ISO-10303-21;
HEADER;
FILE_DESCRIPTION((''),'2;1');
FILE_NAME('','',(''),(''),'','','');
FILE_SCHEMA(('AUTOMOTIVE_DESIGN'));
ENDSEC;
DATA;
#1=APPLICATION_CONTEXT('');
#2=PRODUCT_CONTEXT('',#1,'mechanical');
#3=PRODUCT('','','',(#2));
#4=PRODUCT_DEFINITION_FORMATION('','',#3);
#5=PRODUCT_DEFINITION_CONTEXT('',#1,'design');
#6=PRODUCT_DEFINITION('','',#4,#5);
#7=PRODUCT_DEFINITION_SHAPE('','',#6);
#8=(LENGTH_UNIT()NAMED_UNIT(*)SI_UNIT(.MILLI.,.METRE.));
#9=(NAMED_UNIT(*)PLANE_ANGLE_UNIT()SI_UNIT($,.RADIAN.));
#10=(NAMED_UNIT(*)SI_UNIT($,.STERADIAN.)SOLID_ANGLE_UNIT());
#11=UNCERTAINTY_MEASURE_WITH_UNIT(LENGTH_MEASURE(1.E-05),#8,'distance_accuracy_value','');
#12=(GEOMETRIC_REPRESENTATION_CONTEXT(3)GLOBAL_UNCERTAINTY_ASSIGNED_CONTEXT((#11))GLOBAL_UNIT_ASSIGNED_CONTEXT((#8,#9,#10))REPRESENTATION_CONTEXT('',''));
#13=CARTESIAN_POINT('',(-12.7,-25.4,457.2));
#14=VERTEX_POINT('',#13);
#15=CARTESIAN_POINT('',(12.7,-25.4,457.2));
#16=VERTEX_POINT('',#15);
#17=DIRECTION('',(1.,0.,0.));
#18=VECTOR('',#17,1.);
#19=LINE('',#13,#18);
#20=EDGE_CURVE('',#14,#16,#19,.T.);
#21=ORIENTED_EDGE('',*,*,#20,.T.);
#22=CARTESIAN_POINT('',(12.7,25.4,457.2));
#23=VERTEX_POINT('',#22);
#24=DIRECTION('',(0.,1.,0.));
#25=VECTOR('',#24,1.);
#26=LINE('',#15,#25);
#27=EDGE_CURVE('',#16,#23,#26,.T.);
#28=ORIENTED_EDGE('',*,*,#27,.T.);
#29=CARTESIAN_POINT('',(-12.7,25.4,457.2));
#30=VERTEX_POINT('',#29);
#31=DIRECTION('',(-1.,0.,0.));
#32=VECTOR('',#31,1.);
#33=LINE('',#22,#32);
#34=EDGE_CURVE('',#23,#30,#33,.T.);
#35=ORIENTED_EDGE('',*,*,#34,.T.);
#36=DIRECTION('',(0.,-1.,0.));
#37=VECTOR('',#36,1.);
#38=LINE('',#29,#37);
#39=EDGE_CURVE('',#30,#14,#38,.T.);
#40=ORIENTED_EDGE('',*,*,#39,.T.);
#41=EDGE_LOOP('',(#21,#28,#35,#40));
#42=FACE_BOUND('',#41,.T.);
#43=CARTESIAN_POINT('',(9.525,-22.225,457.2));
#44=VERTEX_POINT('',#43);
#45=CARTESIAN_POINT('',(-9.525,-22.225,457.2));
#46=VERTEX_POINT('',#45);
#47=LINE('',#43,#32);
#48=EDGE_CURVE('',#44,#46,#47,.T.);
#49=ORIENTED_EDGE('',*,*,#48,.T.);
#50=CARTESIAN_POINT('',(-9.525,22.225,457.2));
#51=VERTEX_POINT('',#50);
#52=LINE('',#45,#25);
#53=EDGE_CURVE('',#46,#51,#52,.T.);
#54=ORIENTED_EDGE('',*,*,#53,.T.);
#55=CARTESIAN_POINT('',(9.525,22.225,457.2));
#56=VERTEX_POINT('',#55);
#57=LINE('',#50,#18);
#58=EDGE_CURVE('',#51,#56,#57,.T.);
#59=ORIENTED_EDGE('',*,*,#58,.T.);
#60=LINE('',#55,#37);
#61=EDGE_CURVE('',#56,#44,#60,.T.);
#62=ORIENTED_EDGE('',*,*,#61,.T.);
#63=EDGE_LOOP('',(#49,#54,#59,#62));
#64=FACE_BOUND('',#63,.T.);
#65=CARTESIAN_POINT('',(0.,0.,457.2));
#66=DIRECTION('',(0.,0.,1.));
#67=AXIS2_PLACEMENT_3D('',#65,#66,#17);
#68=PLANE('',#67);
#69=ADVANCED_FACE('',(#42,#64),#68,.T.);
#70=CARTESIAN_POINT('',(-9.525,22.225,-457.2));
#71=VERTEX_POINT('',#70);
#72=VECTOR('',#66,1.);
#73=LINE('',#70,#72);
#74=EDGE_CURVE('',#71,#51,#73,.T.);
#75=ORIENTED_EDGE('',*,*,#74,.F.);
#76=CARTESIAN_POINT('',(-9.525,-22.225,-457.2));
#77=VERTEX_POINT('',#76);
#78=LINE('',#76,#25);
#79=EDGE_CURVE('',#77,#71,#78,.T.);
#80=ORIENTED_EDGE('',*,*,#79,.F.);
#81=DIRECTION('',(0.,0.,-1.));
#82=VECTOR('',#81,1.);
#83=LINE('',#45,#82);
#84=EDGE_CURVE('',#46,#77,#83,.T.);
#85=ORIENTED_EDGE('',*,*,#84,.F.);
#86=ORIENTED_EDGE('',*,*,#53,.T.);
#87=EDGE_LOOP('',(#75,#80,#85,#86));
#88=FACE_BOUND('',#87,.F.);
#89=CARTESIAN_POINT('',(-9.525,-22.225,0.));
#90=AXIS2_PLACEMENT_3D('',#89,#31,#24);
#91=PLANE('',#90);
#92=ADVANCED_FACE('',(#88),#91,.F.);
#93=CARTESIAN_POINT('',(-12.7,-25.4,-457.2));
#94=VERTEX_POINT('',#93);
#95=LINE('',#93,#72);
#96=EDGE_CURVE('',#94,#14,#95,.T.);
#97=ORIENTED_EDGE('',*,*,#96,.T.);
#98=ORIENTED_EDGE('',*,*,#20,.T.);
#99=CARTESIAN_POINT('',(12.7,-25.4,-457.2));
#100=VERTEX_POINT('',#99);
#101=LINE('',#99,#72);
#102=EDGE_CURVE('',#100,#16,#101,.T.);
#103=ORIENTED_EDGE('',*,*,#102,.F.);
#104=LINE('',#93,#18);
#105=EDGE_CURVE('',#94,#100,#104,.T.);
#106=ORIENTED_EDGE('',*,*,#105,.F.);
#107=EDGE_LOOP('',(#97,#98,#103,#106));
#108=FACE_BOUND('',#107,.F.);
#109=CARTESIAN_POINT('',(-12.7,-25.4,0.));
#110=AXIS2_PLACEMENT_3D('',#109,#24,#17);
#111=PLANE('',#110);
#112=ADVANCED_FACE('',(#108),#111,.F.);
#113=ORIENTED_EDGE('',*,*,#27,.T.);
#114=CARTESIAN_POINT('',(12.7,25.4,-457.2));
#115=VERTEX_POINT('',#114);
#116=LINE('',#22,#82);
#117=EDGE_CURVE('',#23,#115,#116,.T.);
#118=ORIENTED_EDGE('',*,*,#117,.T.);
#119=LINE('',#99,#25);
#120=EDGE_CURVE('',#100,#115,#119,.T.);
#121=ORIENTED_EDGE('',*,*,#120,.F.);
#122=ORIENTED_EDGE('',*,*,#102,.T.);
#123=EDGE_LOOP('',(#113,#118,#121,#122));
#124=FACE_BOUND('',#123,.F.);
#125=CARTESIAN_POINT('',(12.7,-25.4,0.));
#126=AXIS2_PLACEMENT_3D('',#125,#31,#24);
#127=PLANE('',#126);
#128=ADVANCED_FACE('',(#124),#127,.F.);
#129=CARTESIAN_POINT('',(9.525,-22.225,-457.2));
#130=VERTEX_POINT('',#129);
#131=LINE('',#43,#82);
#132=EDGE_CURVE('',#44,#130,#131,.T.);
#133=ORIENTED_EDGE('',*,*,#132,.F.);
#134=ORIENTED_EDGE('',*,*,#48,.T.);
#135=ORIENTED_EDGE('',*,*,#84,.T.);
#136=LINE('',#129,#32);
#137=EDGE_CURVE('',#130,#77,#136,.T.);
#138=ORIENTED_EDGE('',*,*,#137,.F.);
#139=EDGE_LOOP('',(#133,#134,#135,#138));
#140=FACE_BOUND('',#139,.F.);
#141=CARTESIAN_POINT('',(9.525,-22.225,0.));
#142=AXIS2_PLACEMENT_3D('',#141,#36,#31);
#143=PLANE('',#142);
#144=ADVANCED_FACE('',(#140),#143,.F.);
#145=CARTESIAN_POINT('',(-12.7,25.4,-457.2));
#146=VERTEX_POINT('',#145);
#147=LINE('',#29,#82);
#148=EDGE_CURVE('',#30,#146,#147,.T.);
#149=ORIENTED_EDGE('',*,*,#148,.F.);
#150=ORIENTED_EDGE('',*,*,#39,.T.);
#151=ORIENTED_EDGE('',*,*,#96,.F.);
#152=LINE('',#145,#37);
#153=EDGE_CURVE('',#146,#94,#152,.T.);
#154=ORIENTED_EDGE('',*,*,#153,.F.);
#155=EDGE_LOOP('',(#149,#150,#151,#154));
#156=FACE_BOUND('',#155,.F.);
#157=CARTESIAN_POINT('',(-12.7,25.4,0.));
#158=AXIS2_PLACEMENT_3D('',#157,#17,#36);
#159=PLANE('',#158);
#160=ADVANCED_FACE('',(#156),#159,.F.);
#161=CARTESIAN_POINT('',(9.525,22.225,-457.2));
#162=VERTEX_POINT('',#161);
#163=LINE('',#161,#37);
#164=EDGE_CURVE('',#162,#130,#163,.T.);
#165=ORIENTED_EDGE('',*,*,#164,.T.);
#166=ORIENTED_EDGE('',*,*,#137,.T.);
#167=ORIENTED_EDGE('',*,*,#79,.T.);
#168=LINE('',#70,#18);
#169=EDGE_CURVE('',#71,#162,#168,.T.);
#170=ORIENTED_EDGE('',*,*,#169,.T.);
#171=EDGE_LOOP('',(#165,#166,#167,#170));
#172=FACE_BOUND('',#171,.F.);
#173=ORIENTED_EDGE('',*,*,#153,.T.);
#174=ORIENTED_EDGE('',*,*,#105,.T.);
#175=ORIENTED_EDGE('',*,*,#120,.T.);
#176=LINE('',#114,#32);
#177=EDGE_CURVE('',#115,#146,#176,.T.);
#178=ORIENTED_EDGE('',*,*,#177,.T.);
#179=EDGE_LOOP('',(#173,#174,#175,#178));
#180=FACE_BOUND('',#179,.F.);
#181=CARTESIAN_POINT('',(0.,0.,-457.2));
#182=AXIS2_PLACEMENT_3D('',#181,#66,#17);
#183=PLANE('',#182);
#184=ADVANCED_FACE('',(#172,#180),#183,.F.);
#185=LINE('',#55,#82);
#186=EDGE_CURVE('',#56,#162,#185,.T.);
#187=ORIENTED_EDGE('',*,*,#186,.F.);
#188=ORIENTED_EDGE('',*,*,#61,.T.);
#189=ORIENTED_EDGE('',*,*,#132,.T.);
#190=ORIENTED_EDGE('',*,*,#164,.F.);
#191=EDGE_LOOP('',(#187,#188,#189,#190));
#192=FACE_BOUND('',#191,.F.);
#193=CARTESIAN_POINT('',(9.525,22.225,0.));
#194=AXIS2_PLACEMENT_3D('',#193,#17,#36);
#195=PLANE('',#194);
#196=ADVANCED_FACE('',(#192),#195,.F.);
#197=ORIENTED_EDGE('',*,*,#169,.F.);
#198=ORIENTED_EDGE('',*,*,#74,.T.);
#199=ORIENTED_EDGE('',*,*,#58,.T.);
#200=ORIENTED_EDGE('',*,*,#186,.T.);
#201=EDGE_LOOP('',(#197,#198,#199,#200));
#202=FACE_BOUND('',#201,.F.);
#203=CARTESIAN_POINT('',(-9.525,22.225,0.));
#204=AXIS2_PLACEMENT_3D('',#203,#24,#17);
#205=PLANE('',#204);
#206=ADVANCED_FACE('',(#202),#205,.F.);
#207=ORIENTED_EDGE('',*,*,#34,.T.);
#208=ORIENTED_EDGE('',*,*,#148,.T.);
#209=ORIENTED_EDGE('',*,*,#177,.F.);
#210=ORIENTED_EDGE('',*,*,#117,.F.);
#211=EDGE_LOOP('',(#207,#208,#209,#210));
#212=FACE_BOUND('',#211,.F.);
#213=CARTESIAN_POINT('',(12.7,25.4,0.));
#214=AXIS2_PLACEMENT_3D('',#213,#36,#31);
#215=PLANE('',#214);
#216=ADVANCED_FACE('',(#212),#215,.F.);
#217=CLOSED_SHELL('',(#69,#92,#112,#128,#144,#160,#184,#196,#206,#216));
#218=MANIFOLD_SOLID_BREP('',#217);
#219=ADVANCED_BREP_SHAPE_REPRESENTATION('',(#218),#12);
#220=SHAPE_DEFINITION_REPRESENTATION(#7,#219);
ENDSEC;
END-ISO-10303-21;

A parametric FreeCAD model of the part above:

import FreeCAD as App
import Part
import Sketcher

V = App.Vector
Q = App.Units.Quantity


def add_polygon(sketch, points):
    """Adds a closed chain of lines whose ends are joined by coincident constraints."""
    first, n = sketch.GeometryCount, len(points)
    for a, b in zip(points, points[1:] + points[:1]):
        sketch.addGeometry(Part.LineSegment(App.Vector(*a, 0), App.Vector(*b, 0)), False)
    for i in range(n):
        sketch.addConstraint(Sketcher.Constraint("Coincident", first + i, 2, first + (i + 1) % n, 1))

doc = App.newDocument("Part")
body = doc.addObject("PartDesign::Body", "Body")

# Sketch on XY plane
sketch1 = body.newObject("Sketcher::SketchObject", "Sketch")
sketch1.AttachmentSupport = (doc.getObject("XY_Plane"), [""])
sketch1.MapMode = "FlatFace"
add_polygon(sketch1, [(-12.7, 25.4), (-12.7, -25.4), (12.7, -25.4), (12.7, 25.4)])  # lines 0-3
add_polygon(sketch1, [(-9.525, -22.225), (-9.525, 22.225), (9.525, 22.225), (9.525, -22.225)])  # lines 4-7
sketch1.addConstraint(Sketcher.Constraint("Vertical", 0))
sketch1.addConstraint(Sketcher.Constraint("Horizontal", 1))
sketch1.addConstraint(Sketcher.Constraint("Vertical", 2))
sketch1.addConstraint(Sketcher.Constraint("Horizontal", 3))
sketch1.addConstraint(Sketcher.Constraint("Vertical", 4))
sketch1.addConstraint(Sketcher.Constraint("Horizontal", 5))
sketch1.addConstraint(Sketcher.Constraint("Vertical", 6))
sketch1.addConstraint(Sketcher.Constraint("Horizontal", 7))
sketch1.addConstraint(Sketcher.Constraint("Symmetric", 0, 2, 2, 2, -1, 1))
sketch1.addConstraint(Sketcher.Constraint("Symmetric", 4, 2, 6, 2, -1, 1))
sketch1.addConstraint(Sketcher.Constraint("DistanceX", 1, 1, 1, 2, Q("1 in")))
sketch1.addConstraint(Sketcher.Constraint("DistanceY", 0, 2, 0, 1, Q("2 in")))
sketch1.addConstraint(Sketcher.Constraint("DistanceX", 3, 2, 4, 2, Q("0.125 in")))
sketch1.addConstraint(Sketcher.Constraint("DistanceY", 4, 2, 3, 2, Q("0.125 in")))
pad1 = body.newObject("PartDesign::Pad", "Pad")
pad1.Profile = sketch1
pad1.Length = Q("36 in")
pad1.Midplane = True

doc.recompute()
